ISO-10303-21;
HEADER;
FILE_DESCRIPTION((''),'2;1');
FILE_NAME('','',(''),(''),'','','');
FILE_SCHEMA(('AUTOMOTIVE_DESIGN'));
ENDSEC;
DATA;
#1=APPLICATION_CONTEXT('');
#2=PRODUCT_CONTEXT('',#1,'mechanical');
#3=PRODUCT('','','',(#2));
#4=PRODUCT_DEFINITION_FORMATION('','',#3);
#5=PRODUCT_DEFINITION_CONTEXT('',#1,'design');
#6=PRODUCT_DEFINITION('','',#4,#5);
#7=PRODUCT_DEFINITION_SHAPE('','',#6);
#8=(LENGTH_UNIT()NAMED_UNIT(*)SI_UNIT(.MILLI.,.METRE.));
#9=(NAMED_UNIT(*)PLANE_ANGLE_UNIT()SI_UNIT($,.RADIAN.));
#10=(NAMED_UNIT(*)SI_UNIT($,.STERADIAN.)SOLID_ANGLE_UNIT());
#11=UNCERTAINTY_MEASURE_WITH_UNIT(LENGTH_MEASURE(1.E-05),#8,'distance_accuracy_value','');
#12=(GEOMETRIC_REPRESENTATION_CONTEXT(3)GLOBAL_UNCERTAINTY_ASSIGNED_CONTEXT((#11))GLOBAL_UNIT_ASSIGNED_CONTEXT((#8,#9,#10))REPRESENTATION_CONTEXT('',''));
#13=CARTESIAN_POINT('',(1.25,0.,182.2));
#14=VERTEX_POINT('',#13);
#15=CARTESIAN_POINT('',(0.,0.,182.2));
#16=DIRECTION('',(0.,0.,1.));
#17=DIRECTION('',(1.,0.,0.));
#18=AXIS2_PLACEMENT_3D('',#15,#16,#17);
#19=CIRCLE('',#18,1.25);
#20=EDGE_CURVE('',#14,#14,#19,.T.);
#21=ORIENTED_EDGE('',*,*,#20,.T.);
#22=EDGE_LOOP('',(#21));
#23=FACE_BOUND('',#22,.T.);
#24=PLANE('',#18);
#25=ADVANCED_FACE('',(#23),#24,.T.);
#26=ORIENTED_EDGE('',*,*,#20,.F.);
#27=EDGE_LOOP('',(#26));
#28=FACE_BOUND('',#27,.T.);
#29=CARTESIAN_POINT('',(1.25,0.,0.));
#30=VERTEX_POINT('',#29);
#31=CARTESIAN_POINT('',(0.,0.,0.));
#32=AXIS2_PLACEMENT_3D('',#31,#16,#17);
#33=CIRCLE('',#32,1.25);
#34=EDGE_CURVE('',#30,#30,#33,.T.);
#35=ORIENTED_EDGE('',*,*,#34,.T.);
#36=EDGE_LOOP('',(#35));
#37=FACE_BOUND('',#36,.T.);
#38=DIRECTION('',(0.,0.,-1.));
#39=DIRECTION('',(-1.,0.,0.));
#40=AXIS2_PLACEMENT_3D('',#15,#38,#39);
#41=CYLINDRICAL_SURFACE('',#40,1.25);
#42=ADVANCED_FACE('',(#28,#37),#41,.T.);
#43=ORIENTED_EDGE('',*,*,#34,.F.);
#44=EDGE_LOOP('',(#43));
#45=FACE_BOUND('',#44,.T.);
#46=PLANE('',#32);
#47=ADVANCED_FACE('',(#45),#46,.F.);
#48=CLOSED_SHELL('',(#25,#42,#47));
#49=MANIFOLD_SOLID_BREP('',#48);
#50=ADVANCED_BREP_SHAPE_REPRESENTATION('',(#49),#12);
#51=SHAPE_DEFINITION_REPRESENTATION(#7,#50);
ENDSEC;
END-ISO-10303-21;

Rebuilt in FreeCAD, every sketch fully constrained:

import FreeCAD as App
import Part
import Sketcher

doc = App.newDocument("Part")
body = doc.addObject("PartDesign::Body", "Body")

# Sketch on XY plane
sketch1 = doc.addObject("Sketcher::SketchObject", "Sketch")
body.addObject(sketch1)
sketch1.AttachmentSupport = (doc.XY_Plane, [""])
sketch1.MapMode = "FlatFace"
sketch1.addGeometry(Part.Circle(App.Vector(0, 0, 0), App.Vector(0, 0, 1), 1.2), False)
sketch1.addConstraint([
    Sketcher.Constraint("Coincident", 0, 3, -1, 1),
    Sketcher.Constraint("Diameter", 0, 2.5),
])
pad1 = doc.addObject("PartDesign::Pad", "Pad")
body.addObject(pad1)
pad1.Profile = sketch1
pad1.Length = 182.2

doc.recompute()
